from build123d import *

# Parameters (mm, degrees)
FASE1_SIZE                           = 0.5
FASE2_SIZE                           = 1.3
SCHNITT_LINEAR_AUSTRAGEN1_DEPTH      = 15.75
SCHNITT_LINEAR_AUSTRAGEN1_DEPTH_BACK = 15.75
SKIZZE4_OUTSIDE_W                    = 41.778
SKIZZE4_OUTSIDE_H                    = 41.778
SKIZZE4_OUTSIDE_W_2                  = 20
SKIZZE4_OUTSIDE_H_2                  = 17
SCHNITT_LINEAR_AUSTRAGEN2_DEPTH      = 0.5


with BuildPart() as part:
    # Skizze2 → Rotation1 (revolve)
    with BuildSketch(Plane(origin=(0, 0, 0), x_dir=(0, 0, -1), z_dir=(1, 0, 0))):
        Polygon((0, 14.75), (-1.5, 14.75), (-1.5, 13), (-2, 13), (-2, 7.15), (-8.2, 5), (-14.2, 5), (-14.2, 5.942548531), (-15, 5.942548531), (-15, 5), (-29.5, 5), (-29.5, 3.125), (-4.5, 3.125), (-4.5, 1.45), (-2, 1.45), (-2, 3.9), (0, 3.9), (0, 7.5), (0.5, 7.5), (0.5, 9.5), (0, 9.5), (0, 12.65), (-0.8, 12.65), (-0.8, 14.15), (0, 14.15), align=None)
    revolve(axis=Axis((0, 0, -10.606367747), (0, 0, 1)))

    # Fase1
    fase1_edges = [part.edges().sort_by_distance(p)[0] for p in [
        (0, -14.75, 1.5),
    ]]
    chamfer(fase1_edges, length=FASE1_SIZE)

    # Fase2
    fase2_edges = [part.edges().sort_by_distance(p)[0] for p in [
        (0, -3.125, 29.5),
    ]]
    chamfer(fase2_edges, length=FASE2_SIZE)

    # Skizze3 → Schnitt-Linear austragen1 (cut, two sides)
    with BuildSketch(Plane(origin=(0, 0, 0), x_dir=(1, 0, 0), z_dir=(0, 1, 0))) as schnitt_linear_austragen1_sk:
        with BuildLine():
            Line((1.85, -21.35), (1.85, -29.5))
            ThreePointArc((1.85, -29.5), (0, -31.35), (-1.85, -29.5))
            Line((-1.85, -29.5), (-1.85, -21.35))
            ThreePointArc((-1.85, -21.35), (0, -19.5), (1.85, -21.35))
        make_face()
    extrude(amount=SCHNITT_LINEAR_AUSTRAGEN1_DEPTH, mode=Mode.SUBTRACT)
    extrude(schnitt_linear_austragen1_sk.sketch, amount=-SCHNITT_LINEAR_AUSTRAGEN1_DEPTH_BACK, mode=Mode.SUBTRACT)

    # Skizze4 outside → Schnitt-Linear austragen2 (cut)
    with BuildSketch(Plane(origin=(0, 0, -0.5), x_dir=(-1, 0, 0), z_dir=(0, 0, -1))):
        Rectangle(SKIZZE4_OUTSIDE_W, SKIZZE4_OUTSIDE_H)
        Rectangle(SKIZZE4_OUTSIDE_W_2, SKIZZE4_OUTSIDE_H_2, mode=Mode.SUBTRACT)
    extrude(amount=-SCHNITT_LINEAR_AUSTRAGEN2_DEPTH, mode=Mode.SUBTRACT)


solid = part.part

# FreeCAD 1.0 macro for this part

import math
import FreeCAD as App
import Part
import Sketcher


def edges_at(feature, points):
    """Names of the edges that pass closest to the given points."""
    edges = feature.Shape.Edges
    near = lambda p: min(range(len(edges)), key=lambda i: edges[i].distToShape(Part.Vertex(*p))[0])
    return sorted({f"Edge{near(p) + 1}" for p in points})


def add_polygon(sketch, points):
    """Adds a closed chain of lines whose ends are joined by coincident constraints."""
    first, n = sketch.GeometryCount, len(points)
    for a, b in zip(points, points[1:] + points[:1]):
        sketch.addGeometry(Part.LineSegment(App.Vector(*a, 0), App.Vector(*b, 0)), False)
    for i in range(n):
        sketch.addConstraint(Sketcher.Constraint("Coincident", first + i, 2, first + (i + 1) % n, 1))

doc = App.newDocument("Part")
params = doc.addObject("Spreadsheet::Sheet", "Params")
for row, (alias, value) in enumerate([
    ("sketch1_width", "2 mm"),
    ("sketch1_height", "6 mm"),
    ("sketch1_height2", "25 mm"),
    ("sketch1_width2", "3.6 mm"),
    ("sketch1_width3", "1.5 mm"),
    ("revolution_angle", "360 deg"),
    ("chamfer_size", "0.5 mm"),
    ("chamfer2_size", "1.3 mm"),
    ("sketch2_radius", "1.85 mm"),
    ("sketch2_height", "8.15 mm"),
    ("sketch3_width", "20 mm"),
    ("sketch3_height", "17 mm"),
    ("pocket2_length", "0.5 mm"),
], start=1):
    params.set(f"A{row}", alias)
    params.set(f"B{row}", "=" + value)
    params.setAlias(f"B{row}", alias)

body = doc.addObject("PartDesign::Body", "Body")

sketch1 = body.newObject("Sketcher::SketchObject", "Sketch")
sketch1.AttachmentSupport = (doc.getObject("YZ_Plane"), [""])
sketch1.MapMode = "FlatFace"
add_polygon(sketch1, [(14.75, 0), (14.75, 1.5), (13, 1.5), (13, 2), (7.15, 2), (5, 8.2), (5, 14.2), (5.942549, 14.2), (5.942549, 15), (5, 15), (5, 29.5), (3.125, 29.5), (3.125, 4.5), (1.45, 4.5), (1.45, 2), (3.9, 2), (3.9, 0), (7.5, 0), (7.5, -0.5), (9.5, -0.5), (9.5, 0), (12.65, 0), (12.65, 0.8), (14.15, 0.8), (14.15, 0)])
sketch1.addConstraint(Sketcher.Constraint("Vertical", 0))
sketch1.addConstraint(Sketcher.Constraint("Horizontal", 1))
sketch1.addConstraint(Sketcher.Constraint("Vertical", 2))
sketch1.addConstraint(Sketcher.Constraint("Horizontal", 3))
sketch1.addConstraint(Sketcher.Constraint("Vertical", 5))
sketch1.addConstraint(Sketcher.Constraint("Horizontal", 6))
sketch1.addConstraint(Sketcher.Constraint("Vertical", 7))
sketch1.addConstraint(Sketcher.Constraint("Horizontal", 8))
sketch1.addConstraint(Sketcher.Constraint("Vertical", 9))
sketch1.addConstraint(Sketcher.Constraint("Horizontal", 10))
sketch1.addConstraint(Sketcher.Constraint("Vertical", 11))
sketch1.addConstraint(Sketcher.Constraint("Horizontal", 12))
sketch1.addConstraint(Sketcher.Constraint("Vertical", 13))
sketch1.addConstraint(Sketcher.Constraint("Horizontal", 14))
sketch1.addConstraint(Sketcher.Constraint("Vertical", 15))
sketch1.addConstraint(Sketcher.Constraint("Horizontal", 16))
sketch1.addConstraint(Sketcher.Constraint("Vertical", 17))
sketch1.addConstraint(Sketcher.Constraint("Horizontal", 18))
sketch1.addConstraint(Sketcher.Constraint("Vertical", 19))
sketch1.addConstraint(Sketcher.Constraint("Horizontal", 20))
sketch1.addConstraint(Sketcher.Constraint("Vertical", 21))
sketch1.addConstraint(Sketcher.Constraint("Horizontal", 22))
sketch1.addConstraint(Sketcher.Constraint("Vertical", 23))
sketch1.addConstraint(Sketcher.Constraint("Horizontal", 24))
sketch1.addConstraint(Sketcher.Constraint("PointOnObject", 15, 2, -1))
sketch1.addConstraint(Sketcher.Constraint("PointOnObject", 19, 2, -1))
sketch1.addConstraint(Sketcher.Constraint("PointOnObject", 23, 2, -1))
sketch1.addConstraint(Sketcher.Constraint("Horizontal", 3, 2, 13, 2))
sketch1.addConstraint(Sketcher.Constraint("Vertical", 5, 2, 8, 2))
sketch1.addConstraint(Sketcher.Constraint("Equal", 22, 0))
sketch1.addConstraint(Sketcher.Constraint("Equal", 18, 15))
sketch1.addConstraint(Sketcher.Constraint("Equal", 2, 17))
sketch1.addConstraint(Sketcher.Constraint("Equal", 7, 21))
sketch1.addConstraint(Sketcher.Constraint("DistanceX", 18, 1, 18, 2, 2.0))
sketch1.addConstraint(Sketcher.Constraint("DistanceY", 5, 1, 5, 2, 6.0))
sketch1.addConstraint(Sketcher.Constraint("DistanceY", 11, 2, 11, 1, 25.0))
sketch1.addConstraint(Sketcher.Constraint("DistanceX", 16, 1, 16, 2, 3.6))
sketch1.addConstraint(Sketcher.Constraint("DistanceX", 22, 1, 22, 2, 1.5))
sketch1.addConstraint(Sketcher.Constraint("DistanceX", 24, 1, 24, 2, 0.6))
sketch1.addConstraint(Sketcher.Constraint("DistanceY", 7, 1, 7, 2, 0.8))
sketch1.addConstraint(Sketcher.Constraint("DistanceY", 9, 1, 9, 2, 14.5))
sketch1.addConstraint(Sketcher.Constraint("DistanceY", 13, 2, 13, 1, 2.5))
sketch1.addConstraint(Sketcher.Constraint("DistanceX", -1, 1, 1, 2, 13.0))
sketch1.addConstraint(Sketcher.Constraint("DistanceX", -1, 1, 4, 2, 5.0))
sketch1.addConstraint(Sketcher.Constraint("DistanceX", 1, 2, 1, 1, 1.75))
sketch1.addConstraint(Sketcher.Constraint("DistanceX", 3, 2, 3, 1, 5.85))
sketch1.addConstraint(Sketcher.Constraint("DistanceX", 14, 1, 14, 2, 2.45))
sketch1.addConstraint(Sketcher.Constraint("DistanceX", 20, 1, 20, 2, 3.15))
sketch1.addConstraint(Sketcher.Constraint("DistanceX", 10, 2, 10, 1, 1.875))
sketch1.addConstraint(Sketcher.Constraint("DistanceX", 6, 1, 6, 2, 0.942549))
sketch1.setExpression("Constraints[58]", "Params.sketch1_width")
sketch1.setExpression("Constraints[59]", "Params.sketch1_height")
sketch1.setExpression("Constraints[60]", "Params.sketch1_height2")
sketch1.setExpression("Constraints[61]", "Params.sketch1_width2")
sketch1.setExpression("Constraints[62]", "Params.sketch1_width3")
revolution = body.newObject("PartDesign::Revolution", "Revolution")
revolution.Profile = sketch1
revolution.ReferenceAxis = (sketch1, ["V_Axis"])
revolution.setExpression("Angle", "Params.revolution_angle")
doc.recompute()

chamfer = body.newObject("PartDesign::Chamfer", "Chamfer")
chamfer.Base = (revolution, edges_at(revolution, [(0, -14.75, 1.5)]))
chamfer.setExpression("Size", "Params.chamfer_size")
doc.recompute()

chamfer2 = body.newObject("PartDesign::Chamfer", "Chamfer001")
chamfer2.Base = (chamfer, edges_at(chamfer, [(0, -3.125, 29.5)]))
chamfer2.setExpression("Size", "Params.chamfer2_size")

sketch2 = body.newObject("Sketcher::SketchObject", "Sketch001")
sketch2.AttachmentSupport = (doc.getObject("XZ_Plane"), [""])
sketch2.MapMode = "FlatFace"
sketch2.addGeometry(Part.LineSegment(App.Vector(1.85, 29.5, 0), App.Vector(1.85, 21.35, 0)), False)
sketch2.addGeometry(Part.ArcOfCircle(Part.Circle(App.Vector(0, 21.35, 0), App.Vector(0, 0, 1), 1.85), math.radians(180), math.radians(360)), False)
sketch2.addGeometry(Part.LineSegment(App.Vector(-1.85, 21.35, 0), App.Vector(-1.85, 29.5, 0)), False)
sketch2.addGeometry(Part.ArcOfCircle(Part.Circle(App.Vector(0, 29.5, 0), App.Vector(0, 0, 1), 1.85), math.radians(0), math.radians(180)), False)
sketch2.addConstraint(Sketcher.Constraint("Tangent", 0, 2, 1, 2))
sketch2.addConstraint(Sketcher.Constraint("Tangent", 1, 1, 2, 1))
sketch2.addConstraint(Sketcher.Constraint("Tangent", 2, 2, 3, 2))
sketch2.addConstraint(Sketcher.Constraint("Tangent", 3, 1, 0, 1))
sketch2.addConstraint(Sketcher.Constraint("Vertical", 0))
sketch2.addConstraint(Sketcher.Constraint("Vertical", 2))
sketch2.addConstraint(Sketcher.Constraint("PointOnObject", 1, 3, -2))
sketch2.addConstraint(Sketcher.Constraint("Radius", 1, 1.85))
sketch2.addConstraint(Sketcher.Constraint("DistanceY", 0, 2, 0, 1, 8.15))
sketch2.addConstraint(Sketcher.Constraint("DistanceY", -1, 1, 3, 3, 29.5))
sketch2.setExpression("Constraints[7]", "Params.sketch2_radius")
sketch2.setExpression("Constraints[8]", "Params.sketch2_height")
pocket1 = body.newObject("PartDesign::Pocket", "Pocket")
pocket1.Profile = sketch2
pocket1.Type = "ThroughAll"
pocket1.Midplane = True

sketch3 = body.newObject("Sketcher::SketchObject", "Sketch002")
sketch3.AttachmentSupport = (doc.getObject("XY_Plane"), [""])
sketch3.MapMode = "FlatFace"
sketch3.AttachmentOffset = App.Placement(App.Vector(0, 0, -0.5), App.Rotation())
add_polygon(sketch3, [(20.889, 20.889), (20.889, -20.889), (-20.889, -20.889), (-20.889, 20.889)])
add_polygon(sketch3, [(-10, -8.5), (10, -8.5), (10, 8.5), (-10, 8.5)])
sketch3.addConstraint(Sketcher.Constraint("Vertical", 0))
sketch3.addConstraint(Sketcher.Constraint("Horizontal", 1))
sketch3.addConstraint(Sketcher.Constraint("Vertical", 2))
sketch3.addConstraint(Sketcher.Constraint("Horizontal", 3))
sketch3.addConstraint(Sketcher.Constraint("Horizontal", 4))
sketch3.addConstraint(Sketcher.Constraint("Vertical", 5))
sketch3.addConstraint(Sketcher.Constraint("Horizontal", 6))
sketch3.addConstraint(Sketcher.Constraint("Vertical", 7))
sketch3.addConstraint(Sketcher.Constraint("Symmetric", 0, 2, 2, 2, -1, 1))
sketch3.addConstraint(Sketcher.Constraint("Symmetric", 4, 2, 6, 2, -1, 1))
sketch3.addConstraint(Sketcher.Constraint("Equal", 3, 0))
sketch3.addConstraint(Sketcher.Constraint("DistanceX", 4, 1, 4, 2, 20.0))
sketch3.addConstraint(Sketcher.Constraint("DistanceY", 5, 1, 5, 2, 17.0))
sketch3.addConstraint(Sketcher.Constraint("DistanceX", 1, 2, 1, 1, 41.778))
sketch3.setExpression("Constraints[19]", "Params.sketch3_width")
sketch3.setExpression("Constraints[20]", "Params.sketch3_height")
pocket2 = body.newObject("PartDesign::Pocket", "Pocket001")
pocket2.Profile = sketch3
pocket2.setExpression("Length", "Params.pocket2_length")
pocket2.Reversed = True

doc.recompute()
